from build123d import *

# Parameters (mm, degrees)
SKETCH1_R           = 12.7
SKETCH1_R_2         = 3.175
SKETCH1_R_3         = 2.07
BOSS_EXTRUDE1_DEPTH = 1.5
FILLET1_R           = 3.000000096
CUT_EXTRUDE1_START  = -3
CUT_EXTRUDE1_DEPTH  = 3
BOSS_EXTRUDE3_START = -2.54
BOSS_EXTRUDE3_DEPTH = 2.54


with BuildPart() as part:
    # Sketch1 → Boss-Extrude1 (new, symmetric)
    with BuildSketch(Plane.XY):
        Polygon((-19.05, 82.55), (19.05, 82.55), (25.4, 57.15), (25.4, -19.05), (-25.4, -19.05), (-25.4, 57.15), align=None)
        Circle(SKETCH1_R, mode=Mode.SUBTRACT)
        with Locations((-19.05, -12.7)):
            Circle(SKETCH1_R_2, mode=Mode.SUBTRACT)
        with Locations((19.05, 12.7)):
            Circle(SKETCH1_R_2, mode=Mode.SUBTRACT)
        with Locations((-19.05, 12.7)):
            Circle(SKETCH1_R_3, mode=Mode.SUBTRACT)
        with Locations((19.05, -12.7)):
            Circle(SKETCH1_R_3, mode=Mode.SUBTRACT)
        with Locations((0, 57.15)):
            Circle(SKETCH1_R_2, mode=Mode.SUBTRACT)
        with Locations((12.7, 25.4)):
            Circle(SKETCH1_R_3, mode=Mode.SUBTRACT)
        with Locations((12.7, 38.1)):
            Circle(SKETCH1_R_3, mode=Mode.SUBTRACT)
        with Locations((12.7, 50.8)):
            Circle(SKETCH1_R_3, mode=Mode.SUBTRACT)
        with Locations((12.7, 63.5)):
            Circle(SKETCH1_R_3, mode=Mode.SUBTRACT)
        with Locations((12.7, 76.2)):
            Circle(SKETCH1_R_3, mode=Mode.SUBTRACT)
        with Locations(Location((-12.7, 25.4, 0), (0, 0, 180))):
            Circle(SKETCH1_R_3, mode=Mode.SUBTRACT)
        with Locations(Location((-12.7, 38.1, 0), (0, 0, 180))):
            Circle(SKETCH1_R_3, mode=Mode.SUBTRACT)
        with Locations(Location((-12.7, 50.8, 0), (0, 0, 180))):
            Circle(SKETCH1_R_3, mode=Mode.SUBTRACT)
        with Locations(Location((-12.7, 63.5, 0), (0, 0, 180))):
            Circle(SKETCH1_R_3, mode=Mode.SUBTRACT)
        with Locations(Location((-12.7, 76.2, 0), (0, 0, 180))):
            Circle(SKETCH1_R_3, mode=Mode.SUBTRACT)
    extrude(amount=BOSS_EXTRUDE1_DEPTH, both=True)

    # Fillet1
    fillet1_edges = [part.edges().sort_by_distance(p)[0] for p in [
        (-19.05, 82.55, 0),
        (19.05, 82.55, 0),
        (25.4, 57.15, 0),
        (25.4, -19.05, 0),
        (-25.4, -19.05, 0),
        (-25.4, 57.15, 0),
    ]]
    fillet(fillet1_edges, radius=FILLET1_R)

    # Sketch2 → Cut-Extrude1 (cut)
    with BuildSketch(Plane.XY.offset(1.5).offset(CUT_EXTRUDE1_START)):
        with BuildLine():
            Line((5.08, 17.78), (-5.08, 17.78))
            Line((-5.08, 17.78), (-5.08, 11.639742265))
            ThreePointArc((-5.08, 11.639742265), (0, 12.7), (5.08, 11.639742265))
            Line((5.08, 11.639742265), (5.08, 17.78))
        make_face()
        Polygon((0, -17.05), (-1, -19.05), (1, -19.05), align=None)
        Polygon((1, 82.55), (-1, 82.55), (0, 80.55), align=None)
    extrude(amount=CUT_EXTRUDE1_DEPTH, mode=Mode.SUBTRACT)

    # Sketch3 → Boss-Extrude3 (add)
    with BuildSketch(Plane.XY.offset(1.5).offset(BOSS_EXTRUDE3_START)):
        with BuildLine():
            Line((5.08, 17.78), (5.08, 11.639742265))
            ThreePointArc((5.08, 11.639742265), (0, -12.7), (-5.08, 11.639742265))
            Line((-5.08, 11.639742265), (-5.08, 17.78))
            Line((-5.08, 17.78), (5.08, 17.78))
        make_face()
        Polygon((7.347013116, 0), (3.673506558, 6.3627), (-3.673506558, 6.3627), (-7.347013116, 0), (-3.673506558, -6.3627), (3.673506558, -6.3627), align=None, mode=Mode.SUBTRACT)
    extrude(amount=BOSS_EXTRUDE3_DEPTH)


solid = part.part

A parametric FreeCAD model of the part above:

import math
import FreeCAD as App
import Part
import Sketcher

V = App.Vector
Q = App.Units.Quantity


def edges_at(feature, points):
    """Names of the edges that pass closest to the given points."""
    edges = feature.Shape.Edges
    near = lambda p: min(range(len(edges)), key=lambda i: edges[i].distToShape(Part.Vertex(*p))[0])
    return sorted({f"Edge{near(p) + 1}" for p in points})


def add_polygon(sketch, points):
    """Adds a closed chain of lines whose ends are joined by coincident constraints."""
    first, n = sketch.GeometryCount, len(points)
    for a, b in zip(points, points[1:] + points[:1]):
        sketch.addGeometry(Part.LineSegment(App.Vector(*a, 0), App.Vector(*b, 0)), False)
    for i in range(n):
        sketch.addConstraint(Sketcher.Constraint("Coincident", first + i, 2, first + (i + 1) % n, 1))

doc = App.newDocument("Part")
body = doc.addObject("PartDesign::Body", "Body")

sketch1 = body.newObject("Sketcher::SketchObject", "Sketch")
sketch1.AttachmentSupport = (doc.getObject("XY_Plane"), [""])
sketch1.MapMode = "FlatFace"
add_polygon(sketch1, [(19.1, 82.5), (-19.1, 82.5), (-25.4, 57.1), (-25.4, -19.1), (25.4, -19.1), (25.4, 57.1)])
sketch1.addGeometry(Part.Circle(V(19.1, -12.7, 0), V(0, 0, 1), 2.1), False)
sketch1.addGeometry(Part.Circle(V(19.1, 12.7, 0), V(0, 0, 1), 3.2), False)
sketch1.addGeometry(Part.Circle(V(12.7, 25.4, 0), V(0, 0, 1), 2.1), False)
sketch1.addGeometry(Part.Circle(V(0, 0, 0), V(0, 0, 1), 12.7), False)
sketch1.addGeometry(Part.Circle(V(-19.1, -12.7, 0), V(0, 0, 1), 3.2), False)
sketch1.addGeometry(Part.Circle(V(-19.1, 12.7, 0), V(0, 0, 1), 2.1), False)
sketch1.addGeometry(Part.Circle(V(-12.7, 25.4, 0), V(0, 0, 1), 2.1), False)
sketch1.addGeometry(Part.Circle(V(12.7, 38.1, 0), V(0, 0, 1), 2.1), False)
sketch1.addGeometry(Part.Circle(V(12.7, 50.8, 0), V(0, 0, 1), 2.1), False)
sketch1.addGeometry(Part.Circle(V(12.7, 63.5, 0), V(0, 0, 1), 2.1), False)
sketch1.addGeometry(Part.Circle(V(12.7, 76.2, 0), V(0, 0, 1), 2.1), False)
sketch1.addGeometry(Part.Circle(V(-12.7, 38.1, 0), V(0, 0, 1), 2.1), False)
sketch1.addGeometry(Part.Circle(V(-12.7, 50.8, 0), V(0, 0, 1), 2.1), False)
sketch1.addGeometry(Part.Circle(V(0, 57.1, 0), V(0, 0, 1), 3.2), False)
sketch1.addGeometry(Part.Circle(V(-12.7, 63.5, 0), V(0, 0, 1), 2.1), False)
sketch1.addGeometry(Part.Circle(V(-12.7, 76.2, 0), V(0, 0, 1), 2.1), False)
sketch1.addConstraint([
    Sketcher.Constraint("Horizontal", 0),
    Sketcher.Constraint("Vertical", 2),
    Sketcher.Constraint("Horizontal", 3),
    Sketcher.Constraint("Vertical", 4),
    Sketcher.Constraint("Coincident", 9, 3, -1, 1),
    Sketcher.Constraint("Equal", 6, 8),
    Sketcher.Constraint("Equal", 7, 10),
    Sketcher.Constraint("Equal", 8, 11),
    Sketcher.Constraint("Equal", 11, 12),
    Sketcher.Constraint("Equal", 12, 13),
    Sketcher.Constraint("Equal", 13, 14),
    Sketcher.Constraint("Equal", 14, 15),
    Sketcher.Constraint("Equal", 15, 16),
    Sketcher.Constraint("Equal", 16, 17),
    Sketcher.Constraint("Equal", 17, 18),
    Sketcher.Constraint("Equal", 10, 19),
    Sketcher.Constraint("Equal", 18, 20),
    Sketcher.Constraint("Equal", 20, 21),
    Sketcher.Constraint("Symmetric", 7, 3, 10, 3, -1, 1),
    Sketcher.Constraint("Symmetric", 6, 3, 11, 3, -1, 1),
    Sketcher.Constraint("Symmetric", 6, 3, 10, 3, -2),
    Sketcher.Constraint("Symmetric", 8, 3, 12, 3, -2),
    Sketcher.Constraint("Symmetric", 13, 3, 17, 3, -2),
    Sketcher.Constraint("Symmetric", 14, 3, 18, 3, -2),
    Sketcher.Constraint("Symmetric", 15, 3, 20, 3, -2),
    Sketcher.Constraint("Symmetric", 16, 3, 21, 3, -2),
    Sketcher.Constraint("Symmetric", 1, 2, 4, 2, -2),
    Sketcher.Constraint("PointOnObject", 19, 3, -2),
    Sketcher.Constraint("Horizontal", 19, 3, 1, 2),
    Sketcher.Constraint("Vertical", 8, 3, 13, 3),
    Sketcher.Constraint("Vertical", 13, 3, 14, 3),
    Sketcher.Constraint("Vertical", 14, 3, 15, 3),
    Sketcher.Constraint("Vertical", 15, 3, 16, 3),
    Sketcher.Constraint("Vertical", 11, 3, 0, 2),
    Sketcher.Constraint("Vertical", 7, 3, 5, 2),
    Sketcher.Constraint("Diameter", 9, Q("1 in")),
    Sketcher.Constraint("Diameter", 7, Q("0.25 in")),
    Sketcher.Constraint("DistanceX", 3, 1, 3, 2, Q("2 in")),
    Sketcher.Constraint("DistanceY", 2, 2, 2, 1, Q("3 in")),
    Sketcher.Constraint("DistanceX", 0, 2, 0, 1, Q("1.5 in")),
    Sketcher.Constraint("DistanceY", -1, 1, 8, 3, Q("1 in")),
    Sketcher.Constraint("DistanceY", -1, 1, 14, 3, Q("2 in")),
    Sketcher.Constraint("DistanceY", -1, 1, 16, 3, Q("3 in")),
    Sketcher.Constraint("DistanceY", 6, 3, 7, 3, Q("1 in")),
    Sketcher.Constraint("DistanceX", 12, 3, 8, 3, Q("1 in")),
    Sketcher.Constraint("DistanceY", 7, 3, 13, 3, Q("1 in")),
    Sketcher.Constraint("DistanceY", 13, 3, 15, 3, Q("1 in")),
    Sketcher.Constraint("DistanceY", 19, 3, 0, 2, Q("1 in")),
    Sketcher.Constraint("Diameter", 6, Q("4.14 mm")),
    Sketcher.Constraint("DistanceY", -1, 1, 19, 3, Q("2.25 in")),
])
pad1 = body.newObject("PartDesign::Pad", "Pad")
pad1.Profile = sketch1
pad1.Length = 3
pad1.Midplane = True
doc.recompute()

fillet = body.newObject("PartDesign::Fillet", "Fillet")
fillet.Base = (pad1, edges_at(pad1, [
    (-19.05, 82.55, 0),
    (19.05, 82.55, 0),
    (25.4, 57.15, 0),
    (25.4, -19.05, 0),
    (-25.4, -19.05, 0),
    (-25.4, 57.15, 0),
]))
fillet.Radius = 3

sketch2 = body.newObject("Sketcher::SketchObject", "Sketch001")
sketch2.AttachmentSupport = (doc.getObject("XY_Plane"), [""])
sketch2.MapMode = "FlatFace"
sketch2.AttachmentOffset = App.Placement(V(0, 0, -1.5), App.Rotation())
sketch2.addGeometry(Part.LineSegment(V(5.1, 17.8, 0), V(-5.1, 17.8, 0)), False)
sketch2.addGeometry(Part.LineSegment(V(-5.1, 17.8, 0), V(-5.1, 11.6, 0)), False)
sketch2.addGeometry(Part.ArcOfCircle(Part.Circle(V(0, 0, 0), V(0, 0, 1), 12.7), math.radians(66), math.radians(114)), False)
sketch2.addGeometry(Part.LineSegment(V(5.1, 11.6, 0), V(5.1, 17.8, 0)), False)
add_polygon(sketch2, [(0, -17.1), (-1, -19.1), (1, -19.1)])
add_polygon(sketch2, [(1, 82.5), (-1, 82.5), (0, 80.5)])
sketch2.addConstraint([
    Sketcher.Constraint("Coincident", 0, 2, 1, 1),
    Sketcher.Constraint("Coincident", 1, 2, 2, 2),
    Sketcher.Constraint("Coincident", 2, 1, 3, 1),
    Sketcher.Constraint("Coincident", 3, 2, 0, 1),
    Sketcher.Constraint("Horizontal", 0),
    Sketcher.Constraint("Vertical", 1),
    Sketcher.Constraint("Vertical", 3),
    Sketcher.Constraint("Horizontal", 5),
    Sketcher.Constraint("Horizontal", 7),
    Sketcher.Constraint("Coincident", 2, 3, -1, 1),
    Sketcher.Constraint("PointOnObject", 6, 2, -2),
    Sketcher.Constraint("PointOnObject", 8, 2, -2),
    Sketcher.Constraint("Parallel", 6, 8),
    Sketcher.Constraint("Parallel", 4, 9),
    Sketcher.Constraint("Horizontal", 1, 2, 2, 1),
    Sketcher.Constraint("Vertical", 4, 2, 7, 2),
    Sketcher.Constraint("Vertical", 5, 2, 9, 2),
    Sketcher.Constraint("Radius", 2, Q("0.5 in")),
    Sketcher.Constraint("DistanceX", 0, 2, 0, 1, Q("0.4 in")),
    Sketcher.Constraint("DistanceY", -1, 1, 0, 2, Q("0.7 in")),
    Sketcher.Constraint("DistanceY", 4, 2, -1, 1, Q("0.75 in")),
    Sketcher.Constraint("DistanceY", -1, 1, 7, 2, Q("3.25 in")),
    Sketcher.Constraint("DistanceX", 5, 1, 5, 2, Q("2 mm")),
    Sketcher.Constraint("DistanceY", 6, 2, -1, 1, Q("17.05 mm")),
])
pocket1 = body.newObject("PartDesign::Pocket", "Pocket")
pocket1.Profile = sketch2
pocket1.Length = 3
pocket1.Reversed = True

sketch3 = body.newObject("Sketcher::SketchObject", "Sketch002")
sketch3.AttachmentSupport = (doc.getObject("XY_Plane"), [""])
sketch3.MapMode = "FlatFace"
sketch3.AttachmentOffset = App.Placement(V(0, 0, -1.04), App.Rotation())
sketch3.addGeometry(Part.LineSegment(V(5, 12, 0), V(5, 18, 0)), False)
sketch3.addGeometry(Part.LineSegment(V(5, 18, 0), V(-5, 18, 0)), False)
sketch3.addGeometry(Part.LineSegment(V(-5, 18, 0), V(-5, 12, 0)), False)
sketch3.addGeometry(Part.ArcOfCircle(Part.Circle(V(0, 0, 0), V(0, 0, 1), 13), math.radians(114), math.radians(426)), False)
add_polygon(sketch3, [(7, 0), (4, -6), (-4, -6), (-7, 0), (-4, 6), (4, 6)])
sketch3.addConstraint([
    Sketcher.Constraint("Coincident", 0, 2, 1, 1),
    Sketcher.Constraint("Coincident", 1, 2, 2, 1),
    Sketcher.Constraint("Coincident", 2, 2, 3, 1),
    Sketcher.Constraint("Coincident", 3, 2, 0, 1),
    Sketcher.Constraint("Vertical", 0),
    Sketcher.Constraint("Horizontal", 1),
    Sketcher.Constraint("Vertical", 2),
    Sketcher.Constraint("Horizontal", 5),
    Sketcher.Constraint("Horizontal", 8),
    Sketcher.Constraint("Coincident", 3, 3, -1, 1),
    Sketcher.Constraint("Symmetric", 4, 2, 7, 2, -1, 1),
    Sketcher.Constraint("Symmetric", 6, 2, 9, 2, -1, 1),
    Sketcher.Constraint("PointOnObject", 6, 2, -1),
    Sketcher.Constraint("Parallel", 6, 9),
    Sketcher.Constraint("Horizontal", 2, 2, 3, 2),
    Sketcher.Constraint("Vertical", 5, 2, 7, 2),
    Sketcher.Constraint("Radius", 3, Q("0.5 in")),
    Sketcher.Constraint("DistanceX", 1, 2, 1, 1, Q("0.4 in")),
    Sketcher.Constraint("Angle", 4, Q("-120 deg")),
    Sketcher.Constraint("DistanceY", -1, 1, 0, 2, Q("0.7 in")),
    Sketcher.Constraint("DistanceY", 4, 2, -1, 1, Q("0.2505 in")),
    Sketcher.Constraint("DistanceX", 5, 2, 5, 1, Q("7.347013 mm")),
])
pad2 = body.newObject("PartDesign::Pad", "Pad001")
pad2.Profile = sketch3
pad2.Length = Q("0.1 in")

doc.recompute()
